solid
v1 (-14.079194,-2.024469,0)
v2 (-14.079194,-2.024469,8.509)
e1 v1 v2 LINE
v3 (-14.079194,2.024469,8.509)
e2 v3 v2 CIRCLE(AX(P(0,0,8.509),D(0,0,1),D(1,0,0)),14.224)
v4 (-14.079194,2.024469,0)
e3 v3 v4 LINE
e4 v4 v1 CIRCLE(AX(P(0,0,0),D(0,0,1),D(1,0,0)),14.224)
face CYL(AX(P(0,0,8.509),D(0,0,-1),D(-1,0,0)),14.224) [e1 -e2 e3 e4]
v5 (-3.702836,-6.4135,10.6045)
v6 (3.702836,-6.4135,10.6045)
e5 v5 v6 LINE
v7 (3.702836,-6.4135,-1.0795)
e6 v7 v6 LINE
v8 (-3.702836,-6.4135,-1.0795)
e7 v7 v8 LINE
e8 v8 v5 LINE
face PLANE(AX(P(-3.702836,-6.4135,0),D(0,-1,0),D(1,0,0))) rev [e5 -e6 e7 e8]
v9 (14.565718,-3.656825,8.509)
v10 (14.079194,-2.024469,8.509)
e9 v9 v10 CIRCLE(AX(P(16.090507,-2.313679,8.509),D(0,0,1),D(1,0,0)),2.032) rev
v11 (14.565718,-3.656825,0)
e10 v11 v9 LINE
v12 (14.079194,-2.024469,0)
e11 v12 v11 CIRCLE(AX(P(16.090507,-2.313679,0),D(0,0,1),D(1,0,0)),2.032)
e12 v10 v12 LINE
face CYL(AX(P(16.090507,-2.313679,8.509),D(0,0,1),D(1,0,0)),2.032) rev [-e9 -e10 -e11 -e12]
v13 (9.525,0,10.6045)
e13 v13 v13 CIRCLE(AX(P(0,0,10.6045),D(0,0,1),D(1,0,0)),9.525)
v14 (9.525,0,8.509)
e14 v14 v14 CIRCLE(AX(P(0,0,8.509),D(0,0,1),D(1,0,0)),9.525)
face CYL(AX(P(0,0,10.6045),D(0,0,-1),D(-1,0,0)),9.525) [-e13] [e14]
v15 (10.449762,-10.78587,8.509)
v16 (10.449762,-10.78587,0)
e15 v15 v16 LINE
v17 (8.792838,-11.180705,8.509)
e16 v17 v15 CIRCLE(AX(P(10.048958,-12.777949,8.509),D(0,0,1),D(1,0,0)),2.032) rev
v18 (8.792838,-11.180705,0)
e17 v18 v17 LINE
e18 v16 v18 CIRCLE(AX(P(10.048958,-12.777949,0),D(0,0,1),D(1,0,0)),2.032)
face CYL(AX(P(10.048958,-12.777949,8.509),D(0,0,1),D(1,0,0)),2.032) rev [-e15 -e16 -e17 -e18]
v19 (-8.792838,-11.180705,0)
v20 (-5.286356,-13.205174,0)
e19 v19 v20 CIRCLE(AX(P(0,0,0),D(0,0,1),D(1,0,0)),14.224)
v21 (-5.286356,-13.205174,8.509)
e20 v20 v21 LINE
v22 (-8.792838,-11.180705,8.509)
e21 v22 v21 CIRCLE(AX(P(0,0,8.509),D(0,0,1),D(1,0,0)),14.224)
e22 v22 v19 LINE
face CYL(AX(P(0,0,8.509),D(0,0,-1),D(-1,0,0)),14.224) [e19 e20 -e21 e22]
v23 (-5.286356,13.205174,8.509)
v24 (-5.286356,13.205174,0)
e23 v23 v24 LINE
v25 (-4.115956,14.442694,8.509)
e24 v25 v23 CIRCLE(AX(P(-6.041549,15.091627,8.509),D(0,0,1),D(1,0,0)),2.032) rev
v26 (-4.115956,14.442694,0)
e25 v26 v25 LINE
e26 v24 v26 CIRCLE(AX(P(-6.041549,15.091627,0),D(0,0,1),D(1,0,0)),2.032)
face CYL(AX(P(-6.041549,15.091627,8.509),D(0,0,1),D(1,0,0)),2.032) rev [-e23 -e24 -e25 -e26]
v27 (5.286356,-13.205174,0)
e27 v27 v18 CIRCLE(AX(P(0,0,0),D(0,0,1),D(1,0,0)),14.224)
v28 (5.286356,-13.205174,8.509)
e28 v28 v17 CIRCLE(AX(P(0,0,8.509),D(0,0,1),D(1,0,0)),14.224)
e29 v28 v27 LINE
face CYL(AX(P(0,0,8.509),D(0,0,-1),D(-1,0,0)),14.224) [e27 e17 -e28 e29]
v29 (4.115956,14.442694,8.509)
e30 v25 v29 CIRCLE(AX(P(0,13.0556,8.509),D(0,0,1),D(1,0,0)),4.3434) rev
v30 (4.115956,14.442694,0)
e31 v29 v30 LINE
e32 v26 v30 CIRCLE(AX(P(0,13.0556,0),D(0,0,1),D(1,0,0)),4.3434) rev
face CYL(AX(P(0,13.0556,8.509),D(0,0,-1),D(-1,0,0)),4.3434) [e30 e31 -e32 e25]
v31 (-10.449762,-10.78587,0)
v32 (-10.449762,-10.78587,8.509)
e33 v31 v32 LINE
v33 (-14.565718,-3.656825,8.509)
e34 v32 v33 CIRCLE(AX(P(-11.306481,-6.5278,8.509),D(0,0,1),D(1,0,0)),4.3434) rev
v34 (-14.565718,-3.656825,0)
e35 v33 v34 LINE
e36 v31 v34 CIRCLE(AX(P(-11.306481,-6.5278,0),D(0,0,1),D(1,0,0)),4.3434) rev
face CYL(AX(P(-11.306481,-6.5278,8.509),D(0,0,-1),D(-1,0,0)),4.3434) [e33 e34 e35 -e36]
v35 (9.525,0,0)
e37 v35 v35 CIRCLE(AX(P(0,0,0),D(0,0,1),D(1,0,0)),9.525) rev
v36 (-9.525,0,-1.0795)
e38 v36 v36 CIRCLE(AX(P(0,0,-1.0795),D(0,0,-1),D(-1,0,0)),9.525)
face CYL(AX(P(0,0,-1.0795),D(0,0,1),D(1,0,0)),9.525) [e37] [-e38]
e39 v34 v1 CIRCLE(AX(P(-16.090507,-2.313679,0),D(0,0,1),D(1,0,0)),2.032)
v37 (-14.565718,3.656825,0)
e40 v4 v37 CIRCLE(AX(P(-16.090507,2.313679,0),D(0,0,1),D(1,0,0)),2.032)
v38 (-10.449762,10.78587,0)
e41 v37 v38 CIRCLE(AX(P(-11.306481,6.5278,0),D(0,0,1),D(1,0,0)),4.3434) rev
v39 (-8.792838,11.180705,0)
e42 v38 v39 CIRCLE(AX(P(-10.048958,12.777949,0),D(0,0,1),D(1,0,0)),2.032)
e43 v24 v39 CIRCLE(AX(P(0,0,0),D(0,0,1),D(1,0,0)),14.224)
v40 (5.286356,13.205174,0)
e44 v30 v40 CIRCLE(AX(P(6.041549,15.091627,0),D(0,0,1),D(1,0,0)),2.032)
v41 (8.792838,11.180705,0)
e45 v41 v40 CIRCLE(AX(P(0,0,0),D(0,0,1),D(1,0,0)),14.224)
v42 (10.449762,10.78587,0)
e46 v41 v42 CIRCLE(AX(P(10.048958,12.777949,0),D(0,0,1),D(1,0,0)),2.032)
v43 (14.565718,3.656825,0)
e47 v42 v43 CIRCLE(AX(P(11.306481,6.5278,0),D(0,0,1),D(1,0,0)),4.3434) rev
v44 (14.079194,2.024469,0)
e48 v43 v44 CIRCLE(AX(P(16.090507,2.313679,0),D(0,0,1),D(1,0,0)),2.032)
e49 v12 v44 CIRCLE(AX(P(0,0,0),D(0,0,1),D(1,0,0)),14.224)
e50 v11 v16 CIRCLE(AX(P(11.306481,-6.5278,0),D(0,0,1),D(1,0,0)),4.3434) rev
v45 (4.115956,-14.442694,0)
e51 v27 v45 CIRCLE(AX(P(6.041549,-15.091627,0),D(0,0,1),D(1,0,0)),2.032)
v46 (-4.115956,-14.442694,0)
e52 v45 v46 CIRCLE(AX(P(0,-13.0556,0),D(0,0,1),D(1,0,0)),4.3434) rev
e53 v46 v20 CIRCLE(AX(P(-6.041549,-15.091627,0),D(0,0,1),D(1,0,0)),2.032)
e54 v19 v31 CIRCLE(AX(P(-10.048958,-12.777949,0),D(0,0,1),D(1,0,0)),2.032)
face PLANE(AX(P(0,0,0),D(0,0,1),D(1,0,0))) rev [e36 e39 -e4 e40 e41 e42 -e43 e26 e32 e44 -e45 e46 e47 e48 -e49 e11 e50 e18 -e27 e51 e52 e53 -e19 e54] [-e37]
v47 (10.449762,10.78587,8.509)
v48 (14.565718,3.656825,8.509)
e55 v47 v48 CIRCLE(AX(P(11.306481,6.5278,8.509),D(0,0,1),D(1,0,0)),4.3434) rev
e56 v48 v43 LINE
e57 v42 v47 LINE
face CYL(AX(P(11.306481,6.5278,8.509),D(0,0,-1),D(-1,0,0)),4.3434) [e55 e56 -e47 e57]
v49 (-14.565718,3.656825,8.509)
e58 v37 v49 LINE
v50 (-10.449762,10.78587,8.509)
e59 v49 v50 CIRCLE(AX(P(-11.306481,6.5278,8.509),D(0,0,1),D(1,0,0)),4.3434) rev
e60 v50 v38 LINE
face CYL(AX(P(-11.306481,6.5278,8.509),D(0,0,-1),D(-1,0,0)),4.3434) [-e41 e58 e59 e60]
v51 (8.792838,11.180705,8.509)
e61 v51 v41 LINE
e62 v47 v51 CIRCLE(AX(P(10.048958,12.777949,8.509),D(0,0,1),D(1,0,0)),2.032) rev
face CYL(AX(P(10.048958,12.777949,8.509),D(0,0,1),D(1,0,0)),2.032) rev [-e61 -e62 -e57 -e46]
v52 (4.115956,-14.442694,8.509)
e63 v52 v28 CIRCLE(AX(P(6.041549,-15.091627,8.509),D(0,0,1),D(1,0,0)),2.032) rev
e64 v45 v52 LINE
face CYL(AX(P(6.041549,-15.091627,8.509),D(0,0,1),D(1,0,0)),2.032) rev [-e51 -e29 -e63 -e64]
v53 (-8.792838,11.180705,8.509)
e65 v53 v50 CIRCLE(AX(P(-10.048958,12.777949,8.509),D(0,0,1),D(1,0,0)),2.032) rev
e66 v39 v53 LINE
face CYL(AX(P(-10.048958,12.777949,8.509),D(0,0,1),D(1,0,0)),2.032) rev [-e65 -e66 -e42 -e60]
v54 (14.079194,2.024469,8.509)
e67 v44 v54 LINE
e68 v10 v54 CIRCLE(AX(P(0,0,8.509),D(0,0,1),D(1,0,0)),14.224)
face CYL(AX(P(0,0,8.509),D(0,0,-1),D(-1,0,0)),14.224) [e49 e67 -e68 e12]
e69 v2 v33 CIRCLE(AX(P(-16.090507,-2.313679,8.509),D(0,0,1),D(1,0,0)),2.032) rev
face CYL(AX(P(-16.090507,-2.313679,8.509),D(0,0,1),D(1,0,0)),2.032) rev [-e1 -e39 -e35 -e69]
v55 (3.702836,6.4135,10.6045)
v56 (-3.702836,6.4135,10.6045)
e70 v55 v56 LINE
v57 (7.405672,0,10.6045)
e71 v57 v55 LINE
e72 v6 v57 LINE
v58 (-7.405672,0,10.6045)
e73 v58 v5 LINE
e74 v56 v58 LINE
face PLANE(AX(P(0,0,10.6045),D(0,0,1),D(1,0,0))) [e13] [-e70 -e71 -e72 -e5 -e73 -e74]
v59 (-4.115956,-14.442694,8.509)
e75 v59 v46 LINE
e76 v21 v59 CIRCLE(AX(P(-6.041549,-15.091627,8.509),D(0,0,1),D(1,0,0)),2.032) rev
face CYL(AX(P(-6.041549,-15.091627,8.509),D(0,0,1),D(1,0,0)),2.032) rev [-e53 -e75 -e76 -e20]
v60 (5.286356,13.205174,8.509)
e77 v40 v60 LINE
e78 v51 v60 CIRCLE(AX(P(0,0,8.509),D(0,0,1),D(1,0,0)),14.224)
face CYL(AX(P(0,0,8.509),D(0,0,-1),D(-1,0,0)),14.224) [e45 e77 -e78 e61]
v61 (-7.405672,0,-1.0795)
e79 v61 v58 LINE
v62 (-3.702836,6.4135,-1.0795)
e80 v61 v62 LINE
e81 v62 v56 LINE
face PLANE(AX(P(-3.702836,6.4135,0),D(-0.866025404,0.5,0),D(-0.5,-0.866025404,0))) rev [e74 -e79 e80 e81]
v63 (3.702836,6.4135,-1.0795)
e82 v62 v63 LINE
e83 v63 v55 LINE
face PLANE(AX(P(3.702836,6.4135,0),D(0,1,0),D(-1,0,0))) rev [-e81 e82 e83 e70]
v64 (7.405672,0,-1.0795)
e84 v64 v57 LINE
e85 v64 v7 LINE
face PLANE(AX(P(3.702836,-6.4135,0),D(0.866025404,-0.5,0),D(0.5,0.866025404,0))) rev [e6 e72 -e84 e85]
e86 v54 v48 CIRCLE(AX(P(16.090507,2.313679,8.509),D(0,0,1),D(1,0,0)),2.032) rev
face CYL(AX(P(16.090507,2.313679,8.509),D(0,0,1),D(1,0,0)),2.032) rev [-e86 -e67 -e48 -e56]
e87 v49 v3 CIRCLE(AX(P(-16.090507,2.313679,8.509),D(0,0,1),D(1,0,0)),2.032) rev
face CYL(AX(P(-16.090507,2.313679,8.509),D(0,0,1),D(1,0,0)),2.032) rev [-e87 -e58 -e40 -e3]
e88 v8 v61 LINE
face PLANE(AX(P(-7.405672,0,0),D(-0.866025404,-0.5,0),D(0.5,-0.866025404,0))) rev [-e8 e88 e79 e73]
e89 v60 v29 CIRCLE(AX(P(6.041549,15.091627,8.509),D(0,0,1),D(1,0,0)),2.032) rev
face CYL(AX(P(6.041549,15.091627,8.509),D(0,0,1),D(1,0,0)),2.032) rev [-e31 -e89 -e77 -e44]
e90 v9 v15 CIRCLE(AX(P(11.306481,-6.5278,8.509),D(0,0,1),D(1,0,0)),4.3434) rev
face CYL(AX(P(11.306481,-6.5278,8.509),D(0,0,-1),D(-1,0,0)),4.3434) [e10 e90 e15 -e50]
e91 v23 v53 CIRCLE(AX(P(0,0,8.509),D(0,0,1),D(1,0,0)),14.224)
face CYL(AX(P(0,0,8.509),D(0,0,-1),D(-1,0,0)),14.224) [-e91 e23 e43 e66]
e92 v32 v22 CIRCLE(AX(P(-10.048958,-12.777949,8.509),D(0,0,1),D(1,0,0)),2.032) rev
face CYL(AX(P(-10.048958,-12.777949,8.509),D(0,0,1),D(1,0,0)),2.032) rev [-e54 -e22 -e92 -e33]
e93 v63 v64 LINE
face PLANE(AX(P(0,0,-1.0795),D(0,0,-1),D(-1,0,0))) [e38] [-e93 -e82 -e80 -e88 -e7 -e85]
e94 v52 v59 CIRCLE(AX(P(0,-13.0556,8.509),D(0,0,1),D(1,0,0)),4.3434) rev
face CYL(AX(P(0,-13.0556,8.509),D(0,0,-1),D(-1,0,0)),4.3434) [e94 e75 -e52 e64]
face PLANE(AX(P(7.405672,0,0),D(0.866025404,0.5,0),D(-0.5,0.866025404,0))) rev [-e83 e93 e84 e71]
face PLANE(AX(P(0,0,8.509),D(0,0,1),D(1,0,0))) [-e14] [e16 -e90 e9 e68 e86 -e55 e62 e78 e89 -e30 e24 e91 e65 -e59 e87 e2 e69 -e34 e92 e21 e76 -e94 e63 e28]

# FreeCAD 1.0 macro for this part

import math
import FreeCAD as App
import Part
import Sketcher
from FreeCAD import Vector
Q = App.Units.Quantity


def edges_at(feature, points):
    """Names of the edges that pass closest to the given points."""
    edges = feature.Shape.Edges
    near = lambda p: min(range(len(edges)), key=lambda i: edges[i].distToShape(Part.Vertex(*p))[0])
    return sorted({f"Edge{near(p) + 1}" for p in points})

doc = App.newDocument("Part")
body = doc.addObject("PartDesign::Body", "Body")

sketch1 = body.newObject("Sketcher::SketchObject", "Sketch")
sketch1.AttachmentSupport = (doc.getObject("XY_Plane"), [""])
sketch1.MapMode = "FlatFace"
sketch1.addGeometry([
    Part.ArcOfCircle(Part.Circle(Vector(11.3, 6.5, 0), Vector(0, 0, 1), 4.3), math.radians(-53), math.radians(113)),
    Part.ArcOfCircle(Part.Circle(Vector(0, 0, 0), Vector(0, 0, 1), 14.2), math.radians(48), math.radians(72)),
    Part.ArcOfCircle(Part.Circle(Vector(0, 13.1, 0), Vector(0, 0, 1), 4.3), math.radians(7), math.radians(173)),
    Part.ArcOfCircle(Part.Circle(Vector(0, 0, 0), Vector(0, 0, 1), 14.2), math.radians(108), math.radians(132)),
    Part.ArcOfCircle(Part.Circle(Vector(-11.3, 6.5, 0), Vector(0, 0, 1), 4.3), math.radians(67), math.radians(233)),
    Part.ArcOfCircle(Part.Circle(Vector(0, 0, 0), Vector(0, 0, 1), 14.2), math.radians(168), math.radians(192)),
    Part.ArcOfCircle(Part.Circle(Vector(-11.3, -6.5, 0), Vector(0, 0, 1), 4.3), math.radians(127), math.radians(293)),
    Part.ArcOfCircle(Part.Circle(Vector(0, 0, 0), Vector(0, 0, 1), 14.2), math.radians(-132), math.radians(-108)),
    Part.ArcOfCircle(Part.Circle(Vector(0, -13.1, 0), Vector(0, 0, 1), 4.3), math.radians(-173), math.radians(-7)),
    Part.ArcOfCircle(Part.Circle(Vector(0, 0, 0), Vector(0, 0, 1), 14.2), math.radians(-72), math.radians(-48)),
    Part.ArcOfCircle(Part.Circle(Vector(11.3, -6.5, 0), Vector(0, 0, 1), 4.3), math.radians(-113), math.radians(53)),
    Part.ArcOfCircle(Part.Circle(Vector(0, 0, 0), Vector(0, 0, 1), 14.2), math.radians(-12), math.radians(12)),
], False)
sketch1.addConstraint([
    Sketcher.Constraint("Coincident", 0, 2, 1, 1),
    Sketcher.Constraint("Coincident", 1, 2, 2, 1),
    Sketcher.Constraint("Coincident", 2, 2, 3, 1),
    Sketcher.Constraint("Coincident", 3, 2, 4, 1),
    Sketcher.Constraint("Coincident", 4, 2, 5, 1),
    Sketcher.Constraint("Coincident", 5, 2, 6, 1),
    Sketcher.Constraint("Coincident", 6, 2, 7, 1),
    Sketcher.Constraint("Coincident", 7, 2, 8, 1),
    Sketcher.Constraint("Coincident", 8, 2, 9, 1),
    Sketcher.Constraint("Coincident", 9, 2, 10, 1),
    Sketcher.Constraint("Coincident", 10, 2, 11, 1),
    Sketcher.Constraint("Coincident", 11, 2, 0, 1),
    Sketcher.Constraint("Coincident", 1, 3, -1, 1),
    Sketcher.Constraint("Coincident", 3, 3, -1, 1),
    Sketcher.Constraint("Coincident", 5, 3, -1, 1),
    Sketcher.Constraint("Coincident", 7, 3, -1, 1),
    Sketcher.Constraint("Coincident", 9, 3, -1, 1),
    Sketcher.Constraint("Coincident", 11, 3, -1, 1),
    Sketcher.Constraint("Equal", 0, 2),
    Sketcher.Constraint("Equal", 1, 3),
    Sketcher.Constraint("Equal", 2, 4),
    Sketcher.Constraint("Equal", 3, 5),
    Sketcher.Constraint("Equal", 4, 6),
    Sketcher.Constraint("Equal", 5, 7),
    Sketcher.Constraint("Equal", 6, 8),
    Sketcher.Constraint("Equal", 7, 9),
    Sketcher.Constraint("Equal", 8, 10),
    Sketcher.Constraint("Equal", 9, 11),
    Sketcher.Constraint("Symmetric", 0, 3, 6, 3, -1, 1),
    Sketcher.Constraint("Symmetric", 2, 3, 8, 3, -1, 1),
    Sketcher.Constraint("Symmetric", 4, 3, 10, 3, -1, 1),
    Sketcher.Constraint("Symmetric", 0, 3, 4, 3, -2),
    Sketcher.Constraint("PointOnObject", 2, 3, -2),
    Sketcher.Constraint("Radius", 1, Q("0.56 in")),
    Sketcher.Constraint("Radius", 0, Q("0.171 in")),
    Sketcher.Constraint("DistanceY", -1, 1, 0, 3, Q("0.257 in")),
    Sketcher.Constraint("DistanceY", -1, 1, 2, 3, Q("0.514 in")),
    Sketcher.Constraint("DistanceX", -1, 1, 0, 3, 11.306481),
])
pad1 = body.newObject("PartDesign::Pad", "Pad")
pad1.Profile = sketch1
pad1.Length = Q("0.335 in")
doc.recompute()

fillet = body.newObject("PartDesign::Fillet", "Fillet")
fillet.Base = (pad1, edges_at(pad1, [
    (-4.315, 13.554, 4.255),
    (4.315, 13.554, 4.255),
    (9.581, 10.514, 4.255),
    (13.895, 3.04, 4.255),
    (13.895, -3.04, 4.255),
    (9.581, -10.514, 4.255),
    (4.315, -13.554, 4.255),
    (-4.315, -13.554, 4.255),
    (-9.581, -10.514, 4.255),
    (-13.895, -3.04, 4.255),
    (-9.581, 10.514, 4.255),
    (-13.895, 3.04, 4.255),
]))
fillet.Radius = Q("0.08 in")

sketch2 = body.newObject("Sketcher::SketchObject", "Sketch001")
sketch2.AttachmentSupport = (doc.getObject("XY_Plane"), [""])
sketch2.MapMode = "FlatFace"
sketch2.AttachmentOffset = App.Placement(Vector(0, 0, 0.335 * 25.4), App.Rotation())
sketch2.addGeometry([
    Part.LineSegment(Vector(7, 0, 0), Vector(4, 6, 0)),
    Part.LineSegment(Vector(4, 6, 0), Vector(-4, 6, 0)),
    Part.LineSegment(Vector(-4, 6, 0), Vector(-7, 0, 0)),
    Part.LineSegment(Vector(-7, 0, 0), Vector(-4, -6, 0)),
    Part.LineSegment(Vector(-4, -6, 0), Vector(4, -6, 0)),
    Part.LineSegment(Vector(4, -6, 0), Vector(7, 0, 0)),
], False)
sketch2.addConstraint([
    Sketcher.Constraint("Coincident", 0, 2, 1, 1),
    Sketcher.Constraint("Coincident", 1, 2, 2, 1),
    Sketcher.Constraint("Coincident", 2, 2, 3, 1),
    Sketcher.Constraint("Coincident", 3, 2, 4, 1),
    Sketcher.Constraint("Coincident", 4, 2, 5, 1),
    Sketcher.Constraint("Coincident", 5, 2, 0, 1),
    Sketcher.Constraint("Horizontal", 1),
    Sketcher.Constraint("Horizontal", 4),
    Sketcher.Constraint("Symmetric", 0, 2, 3, 2, -1, 1),
    Sketcher.Constraint("Symmetric", 2, 2, 5, 2, -1, 1),
    Sketcher.Constraint("PointOnObject", 2, 2, -1),
    Sketcher.Constraint("Parallel", 2, 5),
    Sketcher.Constraint("Vertical", 1, 2, 3, 2),
    Sketcher.Constraint("Angle", 0, Q("120 deg")),
    Sketcher.Constraint("DistanceY", 3, 2, 1, 2, Q("0.505 in")),
    Sketcher.Constraint("DistanceX", 1, 2, 1, 1, 7.405672),
])
pocket1 = body.newObject("PartDesign::Pocket", "Pocket")
pocket1.Profile = sketch2
pocket1.Type = "ThroughAll"

sketch3 = body.newObject("Sketcher::SketchObject", "Sketch002")
sketch3.AttachmentSupport = (doc.getObject("XY_Plane"), [""])
sketch3.MapMode = "FlatFace"
sketch3.addGeometry([
    Part.Circle(Vector(0, 0, 0), Vector(0, 0, 1), 10),
    Part.LineSegment(Vector(4, -6, 0), Vector(7, 0, 0)),
    Part.LineSegment(Vector(7, 0, 0), Vector(4, 6, 0)),
    Part.LineSegment(Vector(4, 6, 0), Vector(-4, 6, 0)),
    Part.LineSegment(Vector(-4, 6, 0), Vector(-7, 0, 0)),
    Part.LineSegment(Vector(-7, 0, 0), Vector(-4, -6, 0)),
    Part.LineSegment(Vector(-4, -6, 0), Vector(4, -6, 0)),
], False)
sketch3.addConstraint([
    Sketcher.Constraint("Coincident", 1, 2, 2, 1),
    Sketcher.Constraint("Coincident", 2, 2, 3, 1),
    Sketcher.Constraint("Coincident", 3, 2, 4, 1),
    Sketcher.Constraint("Coincident", 4, 2, 5, 1),
    Sketcher.Constraint("Coincident", 5, 2, 6, 1),
    Sketcher.Constraint("Coincident", 6, 2, 1, 1),
    Sketcher.Constraint("Horizontal", 3),
    Sketcher.Constraint("Horizontal", 6),
    Sketcher.Constraint("Coincident", 0, 3, -1, 1),
    Sketcher.Constraint("Symmetric", 1, 2, 4, 2, -1, 1),
    Sketcher.Constraint("Symmetric", 2, 2, 5, 2, -1, 1),
    Sketcher.Constraint("PointOnObject", 1, 2, -1),
    Sketcher.Constraint("Parallel", 1, 4),
    Sketcher.Constraint("Vertical", 3, 2, 5, 2),
    Sketcher.Constraint("Diameter", 0, Q("0.75 in")),
    Sketcher.Constraint("Angle", 1, Q("60 deg")),
    Sketcher.Constraint("DistanceY", 5, 2, 3, 2, Q("0.505 in")),
    Sketcher.Constraint("DistanceX", 3, 2, 3, 1, 7.405672),
])
pad2 = body.newObject("PartDesign::Pad", "Pad001")
pad2.Profile = sketch3
pad2.Length = Q("0.0425 in")
pad2.Reversed = True

sketch4 = body.newObject("Sketcher::SketchObject", "Sketch003")
sketch4.AttachmentSupport = (doc.getObject("XY_Plane"), [""])
sketch4.MapMode = "FlatFace"
sketch4.AttachmentOffset = App.Placement(Vector(0, 0, 0.4175 * 25.4), App.Rotation())
sketch4.addGeometry([
    Part.Circle(Vector(0, 0, 0), Vector(0, 0, 1), 10),
    Part.LineSegment(Vector(7, 0, 0), Vector(4, -6, 0)),
    Part.LineSegment(Vector(4, -6, 0), Vector(-4, -6, 0)),
    Part.LineSegment(Vector(-4, -6, 0), Vector(-7, 0, 0)),
    Part.LineSegment(Vector(-7, 0, 0), Vector(-4, 6, 0)),
    Part.LineSegment(Vector(-4, 6, 0), Vector(4, 6, 0)),
    Part.LineSegment(Vector(4, 6, 0), Vector(7, 0, 0)),
], False)
sketch4.addConstraint([
    Sketcher.Constraint("Coincident", 1, 2, 2, 1),
    Sketcher.Constraint("Coincident", 2, 2, 3, 1),
    Sketcher.Constraint("Coincident", 3, 2, 4, 1),
    Sketcher.Constraint("Coincident", 4, 2, 5, 1),
    Sketcher.Constraint("Coincident", 5, 2, 6, 1),
    Sketcher.Constraint("Coincident", 6, 2, 1, 1),
    Sketcher.Constraint("Horizontal", 2),
    Sketcher.Constraint("Horizontal", 5),
    Sketcher.Constraint("Coincident", 0, 3, -1, 1),
    Sketcher.Constraint("Symmetric", 1, 2, 4, 2, -1, 1),
    Sketcher.Constraint("Symmetric", 3, 2, 6, 2, -1, 1),
    Sketcher.Constraint("PointOnObject", 3, 2, -1),
    Sketcher.Constraint("Parallel", 3, 6),
    Sketcher.Constraint("Vertical", 2, 2, 4, 2),
    Sketcher.Constraint("Diameter", 0, Q("0.75 in")),
    Sketcher.Constraint("Angle", 1, Q("-120 deg")),
    Sketcher.Constraint("DistanceY", 2, 2, 4, 2, Q("0.505 in")),
    Sketcher.Constraint("DistanceX", 2, 2, 2, 1, 7.405672),
])
pad3 = body.newObject("PartDesign::Pad", "Pad002")
pad3.Profile = sketch4
pad3.Length = Q("0.0825 in")
pad3.Reversed = True

doc.recompute()
